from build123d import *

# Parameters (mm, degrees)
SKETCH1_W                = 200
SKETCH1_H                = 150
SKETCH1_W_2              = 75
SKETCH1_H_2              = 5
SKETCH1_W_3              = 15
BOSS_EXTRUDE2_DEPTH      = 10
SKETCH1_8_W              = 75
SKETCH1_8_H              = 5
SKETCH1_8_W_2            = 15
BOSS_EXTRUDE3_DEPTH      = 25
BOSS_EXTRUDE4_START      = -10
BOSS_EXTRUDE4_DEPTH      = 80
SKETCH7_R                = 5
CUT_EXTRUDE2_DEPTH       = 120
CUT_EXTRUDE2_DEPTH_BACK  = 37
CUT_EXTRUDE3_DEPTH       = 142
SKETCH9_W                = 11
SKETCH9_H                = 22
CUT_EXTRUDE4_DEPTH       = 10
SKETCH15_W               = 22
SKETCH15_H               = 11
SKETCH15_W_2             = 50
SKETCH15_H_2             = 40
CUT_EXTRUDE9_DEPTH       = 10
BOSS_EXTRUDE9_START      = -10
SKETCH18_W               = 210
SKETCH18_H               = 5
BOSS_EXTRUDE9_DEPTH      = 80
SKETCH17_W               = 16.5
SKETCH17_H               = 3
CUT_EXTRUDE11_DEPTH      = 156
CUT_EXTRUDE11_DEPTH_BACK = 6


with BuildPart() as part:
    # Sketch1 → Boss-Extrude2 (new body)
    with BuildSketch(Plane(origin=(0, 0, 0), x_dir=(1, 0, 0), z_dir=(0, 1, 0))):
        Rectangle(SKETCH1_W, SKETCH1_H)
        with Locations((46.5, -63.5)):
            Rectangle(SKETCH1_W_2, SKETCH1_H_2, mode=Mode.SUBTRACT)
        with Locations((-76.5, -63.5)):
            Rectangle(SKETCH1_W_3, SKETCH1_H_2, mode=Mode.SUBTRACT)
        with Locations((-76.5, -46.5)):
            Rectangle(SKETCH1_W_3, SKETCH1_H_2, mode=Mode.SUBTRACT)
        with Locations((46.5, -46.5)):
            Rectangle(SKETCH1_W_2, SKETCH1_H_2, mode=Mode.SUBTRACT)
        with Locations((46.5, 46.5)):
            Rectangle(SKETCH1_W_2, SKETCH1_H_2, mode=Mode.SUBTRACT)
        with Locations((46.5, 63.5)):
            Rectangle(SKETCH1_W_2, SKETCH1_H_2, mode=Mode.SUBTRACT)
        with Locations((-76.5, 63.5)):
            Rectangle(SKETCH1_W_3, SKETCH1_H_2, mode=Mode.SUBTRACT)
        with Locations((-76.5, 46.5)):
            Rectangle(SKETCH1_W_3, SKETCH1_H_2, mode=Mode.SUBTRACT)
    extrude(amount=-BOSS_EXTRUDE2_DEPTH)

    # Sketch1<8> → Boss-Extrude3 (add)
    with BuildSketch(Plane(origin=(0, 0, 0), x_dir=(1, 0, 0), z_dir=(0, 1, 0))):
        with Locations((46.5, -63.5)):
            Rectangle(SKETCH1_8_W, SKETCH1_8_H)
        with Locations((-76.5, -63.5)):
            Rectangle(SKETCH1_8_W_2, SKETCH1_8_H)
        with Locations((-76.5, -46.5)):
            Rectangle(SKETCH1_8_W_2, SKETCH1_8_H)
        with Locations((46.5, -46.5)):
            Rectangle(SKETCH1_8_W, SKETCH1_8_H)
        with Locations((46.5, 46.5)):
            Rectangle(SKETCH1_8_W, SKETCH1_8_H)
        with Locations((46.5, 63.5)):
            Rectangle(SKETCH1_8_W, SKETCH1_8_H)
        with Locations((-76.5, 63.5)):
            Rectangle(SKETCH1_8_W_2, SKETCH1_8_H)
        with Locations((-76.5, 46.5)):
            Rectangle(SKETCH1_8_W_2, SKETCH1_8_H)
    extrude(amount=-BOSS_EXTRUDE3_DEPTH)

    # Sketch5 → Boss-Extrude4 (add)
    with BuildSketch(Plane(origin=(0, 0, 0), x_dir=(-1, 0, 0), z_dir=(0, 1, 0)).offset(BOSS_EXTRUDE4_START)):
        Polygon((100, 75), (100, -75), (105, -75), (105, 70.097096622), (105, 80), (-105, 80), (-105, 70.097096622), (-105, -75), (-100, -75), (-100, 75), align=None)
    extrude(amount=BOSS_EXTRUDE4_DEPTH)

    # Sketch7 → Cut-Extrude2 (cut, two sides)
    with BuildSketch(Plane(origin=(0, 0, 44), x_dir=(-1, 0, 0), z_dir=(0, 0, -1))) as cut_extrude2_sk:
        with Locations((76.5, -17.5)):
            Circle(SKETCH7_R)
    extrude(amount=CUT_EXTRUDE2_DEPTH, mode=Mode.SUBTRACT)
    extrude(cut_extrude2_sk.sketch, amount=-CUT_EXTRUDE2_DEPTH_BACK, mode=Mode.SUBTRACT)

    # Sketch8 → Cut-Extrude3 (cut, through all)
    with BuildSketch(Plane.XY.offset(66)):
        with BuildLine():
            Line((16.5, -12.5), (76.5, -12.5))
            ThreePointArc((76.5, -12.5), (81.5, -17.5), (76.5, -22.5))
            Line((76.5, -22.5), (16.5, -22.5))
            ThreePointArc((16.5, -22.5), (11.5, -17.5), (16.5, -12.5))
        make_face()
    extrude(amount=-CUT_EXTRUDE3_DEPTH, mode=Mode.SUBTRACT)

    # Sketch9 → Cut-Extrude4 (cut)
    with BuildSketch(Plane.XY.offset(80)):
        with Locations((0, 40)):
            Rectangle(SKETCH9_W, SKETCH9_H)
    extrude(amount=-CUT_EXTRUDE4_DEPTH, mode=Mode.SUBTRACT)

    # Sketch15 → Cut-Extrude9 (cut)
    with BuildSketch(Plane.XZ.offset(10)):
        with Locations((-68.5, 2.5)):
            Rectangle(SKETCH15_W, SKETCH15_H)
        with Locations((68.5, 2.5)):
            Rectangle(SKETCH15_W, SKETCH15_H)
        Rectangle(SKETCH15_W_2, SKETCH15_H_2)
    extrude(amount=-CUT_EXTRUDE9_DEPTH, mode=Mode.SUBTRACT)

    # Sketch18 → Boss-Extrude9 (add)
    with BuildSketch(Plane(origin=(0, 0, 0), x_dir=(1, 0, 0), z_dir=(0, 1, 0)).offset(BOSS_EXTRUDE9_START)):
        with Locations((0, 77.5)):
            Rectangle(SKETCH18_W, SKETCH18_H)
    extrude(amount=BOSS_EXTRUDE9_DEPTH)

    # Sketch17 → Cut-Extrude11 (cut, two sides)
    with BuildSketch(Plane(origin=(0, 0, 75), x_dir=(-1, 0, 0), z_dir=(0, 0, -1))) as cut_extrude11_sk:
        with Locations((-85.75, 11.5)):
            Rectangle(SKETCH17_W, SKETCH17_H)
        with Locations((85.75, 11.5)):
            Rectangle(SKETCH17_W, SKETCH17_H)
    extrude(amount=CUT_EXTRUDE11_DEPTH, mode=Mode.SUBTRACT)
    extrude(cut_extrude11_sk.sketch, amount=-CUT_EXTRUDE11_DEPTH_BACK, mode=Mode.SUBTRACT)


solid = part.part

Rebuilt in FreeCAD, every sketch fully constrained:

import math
import FreeCAD as App
import Part
import Sketcher


def add_polygon(sketch, points):
    """Adds a closed chain of lines whose ends are joined by coincident constraints."""
    first, n = sketch.GeometryCount, len(points)
    for a, b in zip(points, points[1:] + points[:1]):
        sketch.addGeometry(Part.LineSegment(App.Vector(*a, 0), App.Vector(*b, 0)), False)
    for i in range(n):
        sketch.addConstraint(Sketcher.Constraint("Coincident", first + i, 2, first + (i + 1) % n, 1))

doc = App.newDocument("Part")
params = doc.addObject("Spreadsheet::Sheet", "Params")
for row, (alias, value) in enumerate([
    ("sketch1_width", "200 mm"),
    ("sketch1_width2", "15 mm"),
    ("sketch1_width3", "75 mm"),
    ("sketch1_height", "150 mm"),
    ("sketch1_height2", "5 mm"),
    ("pad1_length", "10 mm"),
    ("sketch2_width", "75 mm"),
    ("sketch2_width2", "15 mm"),
    ("sketch2_height", "5 mm"),
    ("pad2_length", "25 mm"),
    ("sketch3_width", "5 mm"),
    ("sketch3_width2", "210 mm"),
    ("sketch3_height", "150 mm"),
    ("sketch3_height2", "155 mm"),
    ("pad3_length", "80 mm"),
    ("sketch4_diameter", "10 mm"),
    ("sketch5_radius", "5 mm"),
    ("sketch5_width", "60 mm"),
    ("sketch6_width", "11 mm"),
    ("sketch6_height", "22 mm"),
    ("pocket3_length", "10 mm"),
    ("sketch7_width", "22 mm"),
    ("sketch7_width2", "50 mm"),
    ("sketch7_height", "11 mm"),
    ("sketch7_height2", "40 mm"),
    ("pocket4_length", "10 mm"),
    ("sketch8_width", "210 mm"),
    ("sketch8_height", "5 mm"),
    ("pad4_length", "80 mm"),
    ("sketch9_height", "3 mm"),
    ("sketch9_width", "16.5 mm"),
], start=1):
    params.set(f"A{row}", alias)
    params.set(f"B{row}", "=" + value)
    params.setAlias(f"B{row}", alias)

body = doc.addObject("PartDesign::Body", "Body")

# Sketch on XZ plane
sketch1 = doc.addObject("Sketcher::SketchObject", "Sketch")
body.addObject(sketch1)
sketch1.AttachmentSupport = (doc.XZ_Plane, [""])
sketch1.MapMode = "FlatFace"
add_polygon(sketch1, [(-100, -75), (-100, 75), (100, 75), (100, -75)])  # lines 0-3
add_polygon(sketch1, [(-69, 66), (-84, 66), (-84, 61), (-69, 61)])  # lines 4-7
add_polygon(sketch1, [(-69, 49), (-84, 49), (-84, 44), (-69, 44)])  # lines 8-11
add_polygon(sketch1, [(84, 66), (9, 66), (9, 61), (84, 61)])  # lines 12-15
add_polygon(sketch1, [(84, 49), (9, 49), (9, 44), (84, 44)])  # lines 16-19
add_polygon(sketch1, [(-69, -44), (-84, -44), (-84, -49), (-69, -49)])  # lines 20-23
add_polygon(sketch1, [(-69, -61), (-84, -61), (-84, -66), (-69, -66)])  # lines 24-27
add_polygon(sketch1, [(84, -44), (9, -44), (9, -49), (84, -49)])  # lines 28-31
add_polygon(sketch1, [(84, -61), (9, -61), (9, -66), (84, -66)])  # lines 32-35
sketch1.addConstraint([
    Sketcher.Constraint("Vertical", 0),
    Sketcher.Constraint("Horizontal", 1),
    Sketcher.Constraint("Vertical", 2),
    Sketcher.Constraint("Horizontal", 3),
    Sketcher.Constraint("Horizontal", 4),
    Sketcher.Constraint("Vertical", 5),
    Sketcher.Constraint("Horizontal", 6),
    Sketcher.Constraint("Vertical", 7),
    Sketcher.Constraint("Horizontal", 8),
    Sketcher.Constraint("Vertical", 9),
    Sketcher.Constraint("Horizontal", 10),
    Sketcher.Constraint("Vertical", 11),
    Sketcher.Constraint("Horizontal", 12),
    Sketcher.Constraint("Vertical", 13),
    Sketcher.Constraint("Horizontal", 14),
    Sketcher.Constraint("Vertical", 15),
    Sketcher.Constraint("Horizontal", 16),
    Sketcher.Constraint("Vertical", 17),
    Sketcher.Constraint("Horizontal", 18),
    Sketcher.Constraint("Vertical", 19),
    Sketcher.Constraint("Horizontal", 20),
    Sketcher.Constraint("Vertical", 21),
    Sketcher.Constraint("Horizontal", 22),
    Sketcher.Constraint("Vertical", 23),
    Sketcher.Constraint("Horizontal", 24),
    Sketcher.Constraint("Vertical", 25),
    Sketcher.Constraint("Horizontal", 26),
    Sketcher.Constraint("Vertical", 27),
    Sketcher.Constraint("Horizontal", 28),
    Sketcher.Constraint("Vertical", 29),
    Sketcher.Constraint("Horizontal", 30),
    Sketcher.Constraint("Vertical", 31),
    Sketcher.Constraint("Horizontal", 32),
    Sketcher.Constraint("Vertical", 33),
    Sketcher.Constraint("Horizontal", 34),
    Sketcher.Constraint("Vertical", 35),
    Sketcher.Constraint("Symmetric", 0, 2, 2, 2, -1, 1),
    Sketcher.Constraint("Symmetric", 18, 2, 20, 2, -1, 1),
    Sketcher.Constraint("Symmetric", 14, 2, 24, 2, -1, 1),
    Sketcher.Constraint("Symmetric", 8, 2, 30, 2, -1, 1),
    Sketcher.Constraint("Symmetric", 4, 2, 34, 2, -1, 1),
    Sketcher.Constraint("Symmetric", 5, 2, 14, 2, -2),
    Sketcher.Constraint("Symmetric", 9, 2, 18, 2, -2),
    Sketcher.Constraint("Symmetric", 11, 2, 22, 2, -1),
    Sketcher.Constraint("Symmetric", 7, 2, 26, 2, -1),
    Sketcher.Constraint("Symmetric", 17, 2, 28, 2, -1),
    Sketcher.Constraint("Symmetric", 13, 2, 32, 2, -1),
    Sketcher.Constraint("Horizontal", 7, 2, 12, 2),
    Sketcher.Constraint("Horizontal", 11, 2, 16, 2),
    Sketcher.Constraint("Vertical", 5, 2, 8, 2),
    Sketcher.Constraint("Vertical", 7, 2, 10, 2),
    Sketcher.Constraint("Vertical", 13, 2, 16, 2),
    Sketcher.Constraint("Equal", 7, 9),
    Sketcher.Constraint("DistanceX", 1, 1, 1, 2, 200.0),
    Sketcher.Constraint("DistanceX", 4, 2, 4, 1, 15.0),
    Sketcher.Constraint("DistanceX", 12, 2, 12, 1, 75.0),
    Sketcher.Constraint("DistanceY", 0, 1, 0, 2, 150.0),
    Sketcher.Constraint("DistanceY", 5, 2, 5, 1, 5.0),
    Sketcher.Constraint("DistanceX", 4, 2, -1, 1, 84.0),
    Sketcher.Constraint("DistanceY", -1, 1, 4, 2, 66.0),
    Sketcher.Constraint("DistanceY", -1, 1, 8, 2, 49.0),
])
sketch1.setExpression("Constraints[89]", "Params.sketch1_width")
sketch1.setExpression("Constraints[90]", "Params.sketch1_width2")
sketch1.setExpression("Constraints[91]", "Params.sketch1_width3")
sketch1.setExpression("Constraints[92]", "Params.sketch1_height")
sketch1.setExpression("Constraints[93]", "Params.sketch1_height2")
pad1 = doc.addObject("PartDesign::Pad", "Pad")
body.addObject(pad1)
pad1.Profile = sketch1
pad1.setExpression("Length", "Params.pad1_length")

# Sketch on XZ plane
sketch2 = doc.addObject("Sketcher::SketchObject", "Sketch001")
body.addObject(sketch2)
sketch2.AttachmentSupport = (doc.XZ_Plane, [""])
sketch2.MapMode = "FlatFace"
add_polygon(sketch2, [(9, 61), (9, 66), (84, 66), (84, 61)])  # lines 0-3
add_polygon(sketch2, [(-84, 61), (-84, 66), (-69, 66), (-69, 61)])  # lines 4-7
add_polygon(sketch2, [(-84, 44), (-84, 49), (-69, 49), (-69, 44)])  # lines 8-11
add_polygon(sketch2, [(9, 44), (9, 49), (84, 49), (84, 44)])  # lines 12-15
add_polygon(sketch2, [(9, -49), (9, -44), (84, -44), (84, -49)])  # lines 16-19
add_polygon(sketch2, [(9, -66), (9, -61), (84, -61), (84, -66)])  # lines 20-23
add_polygon(sketch2, [(-84, -66), (-84, -61), (-69, -61), (-69, -66)])  # lines 24-27
add_polygon(sketch2, [(-84, -49), (-84, -44), (-69, -44), (-69, -49)])  # lines 28-31
sketch2.addConstraint([
    Sketcher.Constraint("Vertical", 0),
    Sketcher.Constraint("Horizontal", 1),
    Sketcher.Constraint("Vertical", 2),
    Sketcher.Constraint("Horizontal", 3),
    Sketcher.Constraint("Vertical", 4),
    Sketcher.Constraint("Horizontal", 5),
    Sketcher.Constraint("Vertical", 6),
    Sketcher.Constraint("Horizontal", 7),
    Sketcher.Constraint("Vertical", 8),
    Sketcher.Constraint("Horizontal", 9),
    Sketcher.Constraint("Vertical", 10),
    Sketcher.Constraint("Horizontal", 11),
    Sketcher.Constraint("Vertical", 12),
    Sketcher.Constraint("Horizontal", 13),
    Sketcher.Constraint("Vertical", 14),
    Sketcher.Constraint("Horizontal", 15),
    Sketcher.Constraint("Vertical", 16),
    Sketcher.Constraint("Horizontal", 17),
    Sketcher.Constraint("Vertical", 18),
    Sketcher.Constraint("Horizontal", 19),
    Sketcher.Constraint("Vertical", 20),
    Sketcher.Constraint("Horizontal", 21),
    Sketcher.Constraint("Vertical", 22),
    Sketcher.Constraint("Horizontal", 23),
    Sketcher.Constraint("Vertical", 24),
    Sketcher.Constraint("Horizontal", 25),
    Sketcher.Constraint("Vertical", 26),
    Sketcher.Constraint("Horizontal", 27),
    Sketcher.Constraint("Vertical", 28),
    Sketcher.Constraint("Horizontal", 29),
    Sketcher.Constraint("Vertical", 30),
    Sketcher.Constraint("Horizontal", 31),
    Sketcher.Constraint("Symmetric", 11, 2, 17, 2, -1, 1),
    Sketcher.Constraint("Symmetric", 7, 2, 21, 2, -1, 1),
    Sketcher.Constraint("Symmetric", 2, 2, 24, 2, -1, 1),
    Sketcher.Constraint("Symmetric", 14, 2, 28, 2, -1, 1),
    Sketcher.Constraint("Symmetric", 1, 2, 4, 2, -2),
    Sketcher.Constraint("Symmetric", 8, 2, 13, 2, -2),
    Sketcher.Constraint("Symmetric", 15, 2, 16, 2, -1),
    Sketcher.Constraint("Symmetric", 3, 2, 20, 2, -1),
    Sketcher.Constraint("Symmetric", 5, 2, 26, 2, -1),
    Sketcher.Constraint("Symmetric", 9, 2, 30, 2, -1),
    Sketcher.Constraint("Horizontal", 23, 2, 26, 2),
    Sketcher.Constraint("Horizontal", 19, 2, 30, 2),
    Sketcher.Constraint("Vertical", 7, 2, 8, 2),
    Sketcher.Constraint("Vertical", 6, 2, 9, 2),
    Sketcher.Constraint("Vertical", 3, 2, 12, 2),
    Sketcher.Constraint("Equal", 6, 8),
    Sketcher.Constraint("DistanceX", 1, 1, 1, 2, 75.0),
    Sketcher.Constraint("DistanceX", 5, 1, 5, 2, 15.0),
    Sketcher.Constraint("DistanceY", 0, 1, 0, 2, 5.0),
    Sketcher.Constraint("DistanceX", -1, 1, 0, 2, 9.0),
    Sketcher.Constraint("DistanceY", -1, 1, 0, 2, 66.0),
    Sketcher.Constraint("DistanceY", -1, 1, 8, 2, 49.0),
])
sketch2.setExpression("Constraints[80]", "Params.sketch2_width")
sketch2.setExpression("Constraints[81]", "Params.sketch2_width2")
sketch2.setExpression("Constraints[82]", "Params.sketch2_height")
pad2 = doc.addObject("PartDesign::Pad", "Pad001")
body.addObject(pad2)
pad2.Profile = sketch2
pad2.setExpression("Length", "Params.pad2_length")

# Sketch on XZ plane
sketch3 = doc.addObject("Sketcher::SketchObject", "Sketch002")
body.addObject(sketch3)
sketch3.AttachmentSupport = (doc.XZ_Plane, [""])
sketch3.MapMode = "FlatFace"
sketch3.AttachmentOffset = App.Placement(App.Vector(0, 0, 10), App.Rotation())
add_polygon(sketch3, [(-100, 75), (-100, -75), (-105, -75), (-105, 80), (105, 80), (105, -75), (100, -75), (100, 75)])  # lines 0-7
sketch3.addConstraint([
    Sketcher.Constraint("Vertical", 0),
    Sketcher.Constraint("Horizontal", 1),
    Sketcher.Constraint("Vertical", 2),
    Sketcher.Constraint("Horizontal", 3),
    Sketcher.Constraint("Vertical", 4),
    Sketcher.Constraint("Horizontal", 5),
    Sketcher.Constraint("Vertical", 6),
    Sketcher.Constraint("Horizontal", 7),
    Sketcher.Constraint("Symmetric", 0, 2, 6, 2, -1, 1),
    Sketcher.Constraint("Symmetric", 1, 2, 4, 2, -2),
    Sketcher.Constraint("DistanceX", 1, 2, 1, 1, 5.0),
    Sketcher.Constraint("DistanceX", 3, 1, 3, 2, 210.0),
    Sketcher.Constraint("DistanceY", 0, 2, 0, 1, 150.0),
    Sketcher.Constraint("DistanceY", 2, 1, 2, 2, 155.0),
])
sketch3.setExpression("Constraints[18]", "Params.sketch3_width")
sketch3.setExpression("Constraints[19]", "Params.sketch3_width2")
sketch3.setExpression("Constraints[20]", "Params.sketch3_height")
sketch3.setExpression("Constraints[21]", "Params.sketch3_height2")
pad3 = doc.addObject("PartDesign::Pad", "Pad002")
body.addObject(pad3)
pad3.Profile = sketch3
pad3.setExpression("Length", "Params.pad3_length")
pad3.Reversed = True

# Sketch on XY plane
sketch4 = doc.addObject("Sketcher::SketchObject", "Sketch003")
body.addObject(sketch4)
sketch4.AttachmentSupport = (doc.XY_Plane, [""])
sketch4.MapMode = "FlatFace"
sketch4.AttachmentOffset = App.Placement(App.Vector(0, 0, 44), App.Rotation())
sketch4.addGeometry(Part.Circle(App.Vector(-76, -18, 0), App.Vector(0, 0, 1), 5), False)
sketch4.addConstraint([
    Sketcher.Constraint("Diameter", 0, 10.0),
    Sketcher.Constraint("DistanceX", 0, 3, -1, 1, 76.5),
    Sketcher.Constraint("DistanceY", 0, 3, -1, 1, 17.5),
])
sketch4.setExpression("Constraints[0]", "Params.sketch4_diameter")
pocket1 = doc.addObject("PartDesign::Pocket", "Pocket")
body.addObject(pocket1)
pocket1.Profile = sketch4
pocket1.Type = "ThroughAll"
pocket1.Midplane = True

# Sketch on XY plane
sketch5 = doc.addObject("Sketcher::SketchObject", "Sketch004")
body.addObject(sketch5)
sketch5.AttachmentSupport = (doc.XY_Plane, [""])
sketch5.MapMode = "FlatFace"
sketch5.AttachmentOffset = App.Placement(App.Vector(0, 0, 66), App.Rotation())
sketch5.addGeometry([
    Part.LineSegment(App.Vector(76, -12, 0), App.Vector(16, -12, 0)),
    Part.ArcOfCircle(Part.Circle(App.Vector(16, -18, 0), App.Vector(0, 0, 1), 5), math.radians(90), math.radians(270)),
    Part.LineSegment(App.Vector(16, -22, 0), App.Vector(76, -22, 0)),
    Part.ArcOfCircle(Part.Circle(App.Vector(76, -18, 0), App.Vector(0, 0, 1), 5), math.radians(-90), math.radians(90)),
], False)
sketch5.addConstraint([
    Sketcher.Constraint("Tangent", 0, 2, 1, 1),
    Sketcher.Constraint("Tangent", 1, 2, 2, 1),
    Sketcher.Constraint("Tangent", 2, 2, 3, 1),
    Sketcher.Constraint("Tangent", 3, 2, 0, 1),
    Sketcher.Constraint("Horizontal", 0),
    Sketcher.Constraint("Horizontal", 2),
    Sketcher.Constraint("Radius", 1, 5.0),
    Sketcher.Constraint("DistanceX", 0, 2, 0, 1, 60.0),
    Sketcher.Constraint("DistanceX", -1, 1, 1, 3, 16.5),
    Sketcher.Constraint("DistanceY", 1, 3, -1, 1, 17.5),
])
sketch5.setExpression("Constraints[6]", "Params.sketch5_radius")
sketch5.setExpression("Constraints[7]", "Params.sketch5_width")
pocket2 = doc.addObject("PartDesign::Pocket", "Pocket001")
body.addObject(pocket2)
pocket2.Profile = sketch5
pocket2.Type = "ThroughAll"

# Sketch on XY plane
sketch6 = doc.addObject("Sketcher::SketchObject", "Sketch005")
body.addObject(sketch6)
sketch6.AttachmentSupport = (doc.XY_Plane, [""])
sketch6.MapMode = "FlatFace"
sketch6.AttachmentOffset = App.Placement(App.Vector(0, 0, 80), App.Rotation())
add_polygon(sketch6, [(-6, 51), (-6, 29), (6, 29), (6, 51)])  # lines 0-3
sketch6.addConstraint([
    Sketcher.Constraint("Vertical", 0),
    Sketcher.Constraint("Horizontal", 1),
    Sketcher.Constraint("Vertical", 2),
    Sketcher.Constraint("Horizontal", 3),
    Sketcher.Constraint("DistanceX", 1, 1, 1, 2, 11.0),
    Sketcher.Constraint("DistanceY", 0, 2, 0, 1, 22.0),
    Sketcher.Constraint("DistanceY", -1, 1, 0, 2, 29.0),
    Sketcher.Constraint("DistanceX", 0, 2, -1, 1, 5.5),
])
sketch6.setExpression("Constraints[8]", "Params.sketch6_width")
sketch6.setExpression("Constraints[9]", "Params.sketch6_height")
pocket3 = doc.addObject("PartDesign::Pocket", "Pocket002")
body.addObject(pocket3)
pocket3.Profile = sketch6
pocket3.setExpression("Length", "Params.pocket3_length")

# Sketch on XZ plane
sketch7 = doc.addObject("Sketcher::SketchObject", "Sketch006")
body.addObject(sketch7)
sketch7.AttachmentSupport = (doc.XZ_Plane, [""])
sketch7.MapMode = "FlatFace"
sketch7.AttachmentOffset = App.Placement(App.Vector(0, 0, 10), App.Rotation())
add_polygon(sketch7, [(-80, 8), (-80, -3), (-58, -3), (-58, 8)])  # lines 0-3
add_polygon(sketch7, [(58, 8), (58, -3), (80, -3), (80, 8)])  # lines 4-7
add_polygon(sketch7, [(-25, 20), (-25, -20), (25, -20), (25, 20)])  # lines 8-11
sketch7.addConstraint([
    Sketcher.Constraint("Vertical", 0),
    Sketcher.Constraint("Horizontal", 1),
    Sketcher.Constraint("Vertical", 2),
    Sketcher.Constraint("Horizontal", 3),
    Sketcher.Constraint("Vertical", 4),
    Sketcher.Constraint("Horizontal", 5),
    Sketcher.Constraint("Vertical", 6),
    Sketcher.Constraint("Horizontal", 7),
    Sketcher.Constraint("Vertical", 8),
    Sketcher.Constraint("Horizontal", 9),
    Sketcher.Constraint("Vertical", 10),
    Sketcher.Constraint("Horizontal", 11),
    Sketcher.Constraint("Symmetric", 8, 2, 10, 2, -1, 1),
    Sketcher.Constraint("Symmetric", 1, 2, 4, 2, -2),
    Sketcher.Constraint("Symmetric", 3, 2, 6, 2, -2),
    Sketcher.Constraint("DistanceX", 1, 1, 1, 2, 22.0),
    Sketcher.Constraint("DistanceX", 9, 1, 9, 2, 50.0),
    Sketcher.Constraint("DistanceY", 0, 2, 0, 1, 11.0),
    Sketcher.Constraint("DistanceY", 8, 2, 8, 1, 40.0),
    Sketcher.Constraint("DistanceY", 0, 2, -1, 1, 3.0),
    Sketcher.Constraint("DistanceX", 1, 2, 4, 2, 115.0),
])
sketch7.setExpression("Constraints[27]", "Params.sketch7_width")
sketch7.setExpression("Constraints[28]", "Params.sketch7_width2")
sketch7.setExpression("Constraints[29]", "Params.sketch7_height")
sketch7.setExpression("Constraints[30]", "Params.sketch7_height2")
pocket4 = doc.addObject("PartDesign::Pocket", "Pocket003")
body.addObject(pocket4)
pocket4.Profile = sketch7
pocket4.setExpression("Length", "Params.pocket4_length")

# Sketch on XZ plane
sketch8 = doc.addObject("Sketcher::SketchObject", "Sketch007")
body.addObject(sketch8)
sketch8.AttachmentSupport = (doc.XZ_Plane, [""])
sketch8.MapMode = "FlatFace"
sketch8.AttachmentOffset = App.Placement(App.Vector(0, 0, 10), App.Rotation())
add_polygon(sketch8, [(-105, -80), (-105, -75), (105, -75), (105, -80)])  # lines 0-3
sketch8.addConstraint([
    Sketcher.Constraint("Vertical", 0),
    Sketcher.Constraint("Horizontal", 1),
    Sketcher.Constraint("Vertical", 2),
    Sketcher.Constraint("Horizontal", 3),
    Sketcher.Constraint("DistanceX", 1, 1, 1, 2, 210.0),
    Sketcher.Constraint("DistanceY", 0, 1, 0, 2, 5.0),
    Sketcher.Constraint("DistanceX", 0, 2, -1, 1, 105.0),
    Sketcher.Constraint("DistanceY", 0, 2, -1, 1, 75.0),
])
sketch8.setExpression("Constraints[8]", "Params.sketch8_width")
sketch8.setExpression("Constraints[9]", "Params.sketch8_height")
pad4 = doc.addObject("PartDesign::Pad", "Pad003")
body.addObject(pad4)
pad4.Profile = sketch8
pad4.setExpression("Length", "Params.pad4_length")
pad4.Reversed = True

# Sketch on XY plane
sketch9 = doc.addObject("Sketcher::SketchObject", "Sketch008")
body.addObject(sketch9)
sketch9.AttachmentSupport = (doc.XY_Plane, [""])
sketch9.MapMode = "FlatFace"
sketch9.AttachmentOffset = App.Placement(App.Vector(0, 0, 75), App.Rotation())
add_polygon(sketch9, [(94, 13), (94, 10), (77.5, 10), (77.5, 13)])  # lines 0-3
add_polygon(sketch9, [(-77.5, 13), (-77.5, 10), (-94, 10), (-94, 13)])  # lines 4-7
sketch9.addConstraint([
    Sketcher.Constraint("Vertical", 0),
    Sketcher.Constraint("Horizontal", 1),
    Sketcher.Constraint("Vertical", 2),
    Sketcher.Constraint("Horizontal", 3),
    Sketcher.Constraint("Vertical", 4),
    Sketcher.Constraint("Horizontal", 5),
    Sketcher.Constraint("Vertical", 6),
    Sketcher.Constraint("Horizontal", 7),
    Sketcher.Constraint("Symmetric", 1, 2, 4, 2, -2),
    Sketcher.Constraint("Symmetric", 3, 2, 6, 2, -2),
    Sketcher.Constraint("DistanceY", 0, 2, 0, 1, 3.0),
    Sketcher.Constraint("DistanceX", 1, 2, 1, 1, 16.5),
    Sketcher.Constraint("DistanceX", -1, 1, 0, 2, 94.0),
    Sketcher.Constraint("DistanceY", -1, 1, 0, 2, 10.0),
])
sketch9.setExpression("Constraints[18]", "Params.sketch9_height")
sketch9.setExpression("Constraints[19]", "Params.sketch9_width")
pocket5 = doc.addObject("PartDesign::Pocket", "Pocket004")
body.addObject(pocket5)
pocket5.Profile = sketch9
pocket5.Type = "ThroughAll"
pocket5.Midplane = True

doc.recompute()
